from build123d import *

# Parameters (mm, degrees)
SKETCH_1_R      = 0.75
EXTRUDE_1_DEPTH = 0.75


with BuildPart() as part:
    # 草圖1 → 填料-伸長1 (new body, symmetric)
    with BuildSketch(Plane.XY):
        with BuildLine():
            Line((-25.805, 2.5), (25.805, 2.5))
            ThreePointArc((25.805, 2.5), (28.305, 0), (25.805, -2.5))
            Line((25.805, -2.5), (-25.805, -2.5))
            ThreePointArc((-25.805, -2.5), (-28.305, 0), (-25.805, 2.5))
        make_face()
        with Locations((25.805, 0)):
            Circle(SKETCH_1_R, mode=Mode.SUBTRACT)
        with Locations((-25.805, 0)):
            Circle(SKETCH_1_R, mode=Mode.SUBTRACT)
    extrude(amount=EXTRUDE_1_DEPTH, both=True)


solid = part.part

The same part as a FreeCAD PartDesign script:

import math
import FreeCAD as App
import Part
import Sketcher
from FreeCAD import Vector

doc = App.newDocument("Part")
body = doc.addObject("PartDesign::Body", "Body")

# Sketch on XY plane
sketch1 = body.newObject("Sketcher::SketchObject", "Sketch")
sketch1.AttachmentSupport = (doc.getObject("XY_Plane"), [""])
sketch1.MapMode = "FlatFace"
sketch1.addGeometry([
    Part.LineSegment(Vector(25.805, 2.5, 0), Vector(-25.805, 2.5, 0)),  # 0
    Part.ArcOfCircle(Part.Circle(Vector(-25.805, 0, 0), Vector(0, 0, 1), 2.5), math.radians(90), math.radians(270)),  # 1
    Part.LineSegment(Vector(-25.805, -2.5, 0), Vector(25.805, -2.5, 0)),  # 2
    Part.ArcOfCircle(Part.Circle(Vector(25.805, 0, 0), Vector(0, 0, 1), 2.5), math.radians(-90), math.radians(90)),  # 3
    Part.Circle(Vector(25.805, 0, 0), Vector(0, 0, 1), 0.75),  # 4
    Part.Circle(Vector(-25.805, 0, 0), Vector(0, 0, 1), 0.75),  # 5
], False)
sketch1.addConstraint([
    Sketcher.Constraint("Tangent", 0, 2, 1, 1),
    Sketcher.Constraint("Tangent", 1, 2, 2, 1),
    Sketcher.Constraint("Tangent", 2, 2, 3, 1),
    Sketcher.Constraint("Tangent", 3, 2, 0, 1),
    Sketcher.Constraint("Horizontal", 0),
    Sketcher.Constraint("Horizontal", 2),
    Sketcher.Constraint("Coincident", 4, 3, 3, 3),
    Sketcher.Constraint("Coincident", 5, 3, 1, 3),
    Sketcher.Constraint("Equal", 4, 5),
    Sketcher.Constraint("Symmetric", 1, 3, 3, 3, -1, 1),
    Sketcher.Constraint("Diameter", 4, 1.5),
    Sketcher.Constraint("Radius", 1, 2.5),
    Sketcher.Constraint("DistanceX", 0, 2, 0, 1, 51.61),
])
pad1 = body.newObject("PartDesign::Pad", "Pad")
pad1.Profile = sketch1
pad1.Length = 1.5
pad1.Midplane = True

doc.recompute()
